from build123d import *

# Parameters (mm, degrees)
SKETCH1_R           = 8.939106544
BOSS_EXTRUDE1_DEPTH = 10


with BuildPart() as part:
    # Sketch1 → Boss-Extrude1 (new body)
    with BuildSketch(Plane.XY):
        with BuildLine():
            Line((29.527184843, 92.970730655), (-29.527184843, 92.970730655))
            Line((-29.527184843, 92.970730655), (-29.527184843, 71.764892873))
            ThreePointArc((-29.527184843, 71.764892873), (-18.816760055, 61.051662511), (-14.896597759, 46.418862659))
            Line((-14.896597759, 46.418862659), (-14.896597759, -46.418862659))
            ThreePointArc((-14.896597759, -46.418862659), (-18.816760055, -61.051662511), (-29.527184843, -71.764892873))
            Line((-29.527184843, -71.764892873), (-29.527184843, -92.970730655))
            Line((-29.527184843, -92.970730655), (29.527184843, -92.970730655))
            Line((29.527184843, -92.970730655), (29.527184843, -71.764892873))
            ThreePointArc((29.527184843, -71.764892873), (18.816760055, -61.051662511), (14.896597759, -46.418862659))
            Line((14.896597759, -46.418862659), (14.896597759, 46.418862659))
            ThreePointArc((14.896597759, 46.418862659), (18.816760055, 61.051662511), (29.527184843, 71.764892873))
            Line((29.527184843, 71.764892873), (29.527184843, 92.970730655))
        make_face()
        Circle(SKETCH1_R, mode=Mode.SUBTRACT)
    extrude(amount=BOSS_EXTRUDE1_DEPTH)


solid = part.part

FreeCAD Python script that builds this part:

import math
import FreeCAD as App
import Part
import Sketcher

doc = App.newDocument("Part")
body = doc.addObject("PartDesign::Body", "Body")

# Sketch on XY plane
sketch1 = doc.addObject("Sketcher::SketchObject", "Sketch")
body.addObject(sketch1)
sketch1.AttachmentSupport = (doc.XY_Plane, [""])
sketch1.MapMode = "FlatFace"
sketch1.addGeometry([
    Part.LineSegment(App.Vector(29.527185, 92.970731, 0), App.Vector(-29.527185, 92.970731, 0)),  # 0
    Part.LineSegment(App.Vector(-29.527185, 92.970731, 0), App.Vector(-29.527185, 71.764893, 0)),  # 1
    Part.ArcOfCircle(Part.Circle(App.Vector(-44.166624, 46.418863, 0), App.Vector(0, 0, 1), 29.270026), math.radians(0), math.radians(59.989996)),  # 2
    Part.LineSegment(App.Vector(-14.896598, 46.418863, 0), App.Vector(-14.896598, -46.418863, 0)),  # 3
    Part.ArcOfCircle(Part.Circle(App.Vector(-44.166624, -46.418863, 0), App.Vector(0, 0, 1), 29.270026), math.radians(-59.989996), math.radians(0)),  # 4
    Part.LineSegment(App.Vector(-29.527185, -71.764893, 0), App.Vector(-29.527185, -92.970731, 0)),  # 5
    Part.LineSegment(App.Vector(-29.527185, -92.970731, 0), App.Vector(29.527185, -92.970731, 0)),  # 6
    Part.LineSegment(App.Vector(29.527185, -92.970731, 0), App.Vector(29.527185, -71.764893, 0)),  # 7
    Part.ArcOfCircle(Part.Circle(App.Vector(44.166624, -46.418863, 0), App.Vector(0, 0, 1), 29.270026), math.radians(-180), math.radians(-120.010004)),  # 8
    Part.LineSegment(App.Vector(14.896598, -46.418863, 0), App.Vector(14.896598, 46.418863, 0)),  # 9
    Part.ArcOfCircle(Part.Circle(App.Vector(44.166624, 46.418863, 0), App.Vector(0, 0, 1), 29.270026), math.radians(120.010004), math.radians(180)),  # 10
    Part.LineSegment(App.Vector(29.527185, 71.764893, 0), App.Vector(29.527185, 92.970731, 0)),  # 11
    Part.Circle(App.Vector(0, 0, 0), App.Vector(0, 0, 1), 8.939107),  # 12
], False)
sketch1.addConstraint([
    Sketcher.Constraint("Coincident", 0, 2, 1, 1),
    Sketcher.Constraint("Coincident", 1, 2, 2, 2),
    Sketcher.Constraint("Tangent", 2, 1, 3, 1),
    Sketcher.Constraint("Tangent", 3, 2, 4, 2),
    Sketcher.Constraint("Coincident", 4, 1, 5, 1),
    Sketcher.Constraint("Coincident", 5, 2, 6, 1),
    Sketcher.Constraint("Coincident", 6, 2, 7, 1),
    Sketcher.Constraint("Coincident", 7, 2, 8, 2),
    Sketcher.Constraint("Tangent", 8, 1, 9, 1),
    Sketcher.Constraint("Tangent", 9, 2, 10, 2),
    Sketcher.Constraint("Coincident", 10, 1, 11, 1),
    Sketcher.Constraint("Coincident", 11, 2, 0, 1),
    Sketcher.Constraint("Horizontal", 0),
    Sketcher.Constraint("Vertical", 1),
    Sketcher.Constraint("Vertical", 3),
    Sketcher.Constraint("Vertical", 5),
    Sketcher.Constraint("Horizontal", 6),
    Sketcher.Constraint("Vertical", 7),
    Sketcher.Constraint("Vertical", 9),
    Sketcher.Constraint("Vertical", 11),
    Sketcher.Constraint("Coincident", 12, 3, -1, 1),
    Sketcher.Constraint("Equal", 2, 4),
    Sketcher.Constraint("Equal", 4, 8),
    Sketcher.Constraint("Equal", 8, 10),
    Sketcher.Constraint("Symmetric", 2, 3, 8, 3, -1, 1),
    Sketcher.Constraint("Symmetric", 0, 2, 6, 2, -1, 1),
    Sketcher.Constraint("Symmetric", 4, 1, 10, 1, -1, 1),
    Sketcher.Constraint("Symmetric", 4, 1, 7, 2, -2),
    Sketcher.Constraint("Diameter", 12, 17.878213),
    Sketcher.Constraint("Radius", 2, 29.270026),
    Sketcher.Constraint("DistanceX", 0, 2, 0, 1, 59.05437),
    Sketcher.Constraint("DistanceY", 1, 2, 1, 1, 21.205838),
    Sketcher.Constraint("DistanceY", 3, 2, 3, 1, 92.837725),
    Sketcher.Constraint("DistanceY", -1, 1, 0, 2, 92.970731),
])
pad1 = doc.addObject("PartDesign::Pad", "Pad")
body.addObject(pad1)
pad1.Profile = sketch1
pad1.Length = 10

doc.recompute()
